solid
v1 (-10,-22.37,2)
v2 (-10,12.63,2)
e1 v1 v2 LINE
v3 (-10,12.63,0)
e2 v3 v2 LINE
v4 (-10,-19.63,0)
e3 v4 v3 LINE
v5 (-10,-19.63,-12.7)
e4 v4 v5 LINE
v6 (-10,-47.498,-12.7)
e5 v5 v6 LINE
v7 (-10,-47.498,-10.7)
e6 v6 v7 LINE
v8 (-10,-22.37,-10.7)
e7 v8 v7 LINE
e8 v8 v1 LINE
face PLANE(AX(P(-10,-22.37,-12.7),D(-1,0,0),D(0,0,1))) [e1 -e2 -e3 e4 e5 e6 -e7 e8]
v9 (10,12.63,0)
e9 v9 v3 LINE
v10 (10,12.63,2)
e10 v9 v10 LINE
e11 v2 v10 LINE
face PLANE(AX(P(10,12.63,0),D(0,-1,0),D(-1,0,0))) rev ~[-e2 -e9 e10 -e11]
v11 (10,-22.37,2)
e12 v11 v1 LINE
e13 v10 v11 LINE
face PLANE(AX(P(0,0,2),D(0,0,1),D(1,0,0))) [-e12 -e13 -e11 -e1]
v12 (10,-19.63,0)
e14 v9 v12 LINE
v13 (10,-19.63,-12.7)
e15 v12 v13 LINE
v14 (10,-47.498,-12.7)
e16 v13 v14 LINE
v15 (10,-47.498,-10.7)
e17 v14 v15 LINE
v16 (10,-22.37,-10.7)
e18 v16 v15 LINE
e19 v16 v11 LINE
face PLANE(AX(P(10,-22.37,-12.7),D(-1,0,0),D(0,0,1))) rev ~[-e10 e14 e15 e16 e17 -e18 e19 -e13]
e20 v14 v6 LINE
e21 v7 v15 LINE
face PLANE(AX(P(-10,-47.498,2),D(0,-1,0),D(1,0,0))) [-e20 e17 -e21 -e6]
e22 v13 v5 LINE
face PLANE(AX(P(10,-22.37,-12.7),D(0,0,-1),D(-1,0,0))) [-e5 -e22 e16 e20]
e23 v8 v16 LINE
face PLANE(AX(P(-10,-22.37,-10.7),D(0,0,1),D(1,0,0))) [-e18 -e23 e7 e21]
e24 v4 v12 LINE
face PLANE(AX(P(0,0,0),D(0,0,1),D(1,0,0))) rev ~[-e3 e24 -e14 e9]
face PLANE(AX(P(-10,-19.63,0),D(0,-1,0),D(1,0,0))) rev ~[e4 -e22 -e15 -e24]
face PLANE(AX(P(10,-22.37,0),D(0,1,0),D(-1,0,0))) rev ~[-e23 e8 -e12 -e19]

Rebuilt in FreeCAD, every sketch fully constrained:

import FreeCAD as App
import Part
import Sketcher
Q = App.Units.Quantity


def add_polygon(sketch, points):
    """Adds a closed chain of lines whose ends are joined by coincident constraints."""
    first, n = sketch.GeometryCount, len(points)
    for a, b in zip(points, points[1:] + points[:1]):
        sketch.addGeometry(Part.LineSegment(App.Vector(*a, 0), App.Vector(*b, 0)), False)
    for i in range(n):
        sketch.addConstraint(Sketcher.Constraint("Coincident", first + i, 2, first + (i + 1) % n, 1))

doc = App.newDocument("Part")
body = doc.addObject("PartDesign::Body", "Body")

# Sketch on XY plane
sketch1 = body.newObject("Sketcher::SketchObject", "Sketch")
sketch1.AttachmentSupport = (doc.getObject("XY_Plane"), [""])
sketch1.MapMode = "FlatFace"
add_polygon(sketch1, [(10, 13), (-10, 13), (-10, -22), (10, -22)])  # lines 0-3
sketch1.addConstraint(Sketcher.Constraint("Horizontal", 0))
sketch1.addConstraint(Sketcher.Constraint("Vertical", 1))
sketch1.addConstraint(Sketcher.Constraint("Horizontal", 2))
sketch1.addConstraint(Sketcher.Constraint("Vertical", 3))
sketch1.addConstraint(Sketcher.Constraint("DistanceX", 0, 2, 0, 1, Q("20 mm")))
sketch1.addConstraint(Sketcher.Constraint("DistanceY", 1, 2, 1, 1, Q("35 mm")))
sketch1.addConstraint(Sketcher.Constraint("DistanceX", 0, 2, -1, 1, Q("10 mm")))
sketch1.addConstraint(Sketcher.Constraint("DistanceY", -1, 1, 0, 2, Q("12.63 mm")))
pad1 = body.newObject("PartDesign::Pad", "Pad")
pad1.Profile = sketch1
pad1.Length = 2

# Sketch on XY plane
sketch2 = body.newObject("Sketcher::SketchObject", "Sketch001")
sketch2.AttachmentSupport = (doc.getObject("XY_Plane"), [""])
sketch2.MapMode = "FlatFace"
add_polygon(sketch2, [(-10, -19.6), (10, -19.6), (10, -22.4), (-10, -22.4)])  # lines 0-3
sketch2.addConstraint(Sketcher.Constraint("Horizontal", 0))
sketch2.addConstraint(Sketcher.Constraint("Vertical", 1))
sketch2.addConstraint(Sketcher.Constraint("Horizontal", 2))
sketch2.addConstraint(Sketcher.Constraint("Vertical", 3))
sketch2.addConstraint(Sketcher.Constraint("DistanceX", 0, 1, 0, 2, Q("20 mm")))
sketch2.addConstraint(Sketcher.Constraint("DistanceX", -1, 1, 0, 2, Q("10 mm")))
sketch2.addConstraint(Sketcher.Constraint("DistanceY", 1, 2, 1, 1, Q("2.74 mm")))
sketch2.addConstraint(Sketcher.Constraint("DistanceY", 0, 2, -1, 1, Q("19.63 mm")))
pad2 = body.newObject("PartDesign::Pad", "Pad001")
pad2.Profile = sketch2
pad2.Length = 12.7
pad2.Reversed = True

# Sketch on XZ plane
sketch3 = body.newObject("Sketcher::SketchObject", "Sketch002")
sketch3.AttachmentSupport = (doc.getObject("XZ_Plane"), [""])
sketch3.MapMode = "FlatFace"
sketch3.AttachmentOffset = App.Placement(App.Vector(0, 0, 22.37), App.Rotation())
add_polygon(sketch3, [(-10, -10.7), (-10, -12.7), (10, -12.7), (10, -10.7)])  # lines 0-3
sketch3.addConstraint(Sketcher.Constraint("Vertical", 0))
sketch3.addConstraint(Sketcher.Constraint("Horizontal", 1))
sketch3.addConstraint(Sketcher.Constraint("Vertical", 2))
sketch3.addConstraint(Sketcher.Constraint("Horizontal", 3))
sketch3.addConstraint(Sketcher.Constraint("DistanceY", 0, 2, 0, 1, Q("2 mm")))
sketch3.addConstraint(Sketcher.Constraint("DistanceX", 1, 1, 1, 2, Q("20 mm")))
sketch3.addConstraint(Sketcher.Constraint("DistanceX", 0, 2, -1, 1, Q("10 mm")))
sketch3.addConstraint(Sketcher.Constraint("DistanceY", 0, 2, -1, 1, Q("12.7 mm")))
pad3 = body.newObject("PartDesign::Pad", "Pad002")
pad3.Profile = sketch3
pad3.Length = 25.128

doc.recompute()
